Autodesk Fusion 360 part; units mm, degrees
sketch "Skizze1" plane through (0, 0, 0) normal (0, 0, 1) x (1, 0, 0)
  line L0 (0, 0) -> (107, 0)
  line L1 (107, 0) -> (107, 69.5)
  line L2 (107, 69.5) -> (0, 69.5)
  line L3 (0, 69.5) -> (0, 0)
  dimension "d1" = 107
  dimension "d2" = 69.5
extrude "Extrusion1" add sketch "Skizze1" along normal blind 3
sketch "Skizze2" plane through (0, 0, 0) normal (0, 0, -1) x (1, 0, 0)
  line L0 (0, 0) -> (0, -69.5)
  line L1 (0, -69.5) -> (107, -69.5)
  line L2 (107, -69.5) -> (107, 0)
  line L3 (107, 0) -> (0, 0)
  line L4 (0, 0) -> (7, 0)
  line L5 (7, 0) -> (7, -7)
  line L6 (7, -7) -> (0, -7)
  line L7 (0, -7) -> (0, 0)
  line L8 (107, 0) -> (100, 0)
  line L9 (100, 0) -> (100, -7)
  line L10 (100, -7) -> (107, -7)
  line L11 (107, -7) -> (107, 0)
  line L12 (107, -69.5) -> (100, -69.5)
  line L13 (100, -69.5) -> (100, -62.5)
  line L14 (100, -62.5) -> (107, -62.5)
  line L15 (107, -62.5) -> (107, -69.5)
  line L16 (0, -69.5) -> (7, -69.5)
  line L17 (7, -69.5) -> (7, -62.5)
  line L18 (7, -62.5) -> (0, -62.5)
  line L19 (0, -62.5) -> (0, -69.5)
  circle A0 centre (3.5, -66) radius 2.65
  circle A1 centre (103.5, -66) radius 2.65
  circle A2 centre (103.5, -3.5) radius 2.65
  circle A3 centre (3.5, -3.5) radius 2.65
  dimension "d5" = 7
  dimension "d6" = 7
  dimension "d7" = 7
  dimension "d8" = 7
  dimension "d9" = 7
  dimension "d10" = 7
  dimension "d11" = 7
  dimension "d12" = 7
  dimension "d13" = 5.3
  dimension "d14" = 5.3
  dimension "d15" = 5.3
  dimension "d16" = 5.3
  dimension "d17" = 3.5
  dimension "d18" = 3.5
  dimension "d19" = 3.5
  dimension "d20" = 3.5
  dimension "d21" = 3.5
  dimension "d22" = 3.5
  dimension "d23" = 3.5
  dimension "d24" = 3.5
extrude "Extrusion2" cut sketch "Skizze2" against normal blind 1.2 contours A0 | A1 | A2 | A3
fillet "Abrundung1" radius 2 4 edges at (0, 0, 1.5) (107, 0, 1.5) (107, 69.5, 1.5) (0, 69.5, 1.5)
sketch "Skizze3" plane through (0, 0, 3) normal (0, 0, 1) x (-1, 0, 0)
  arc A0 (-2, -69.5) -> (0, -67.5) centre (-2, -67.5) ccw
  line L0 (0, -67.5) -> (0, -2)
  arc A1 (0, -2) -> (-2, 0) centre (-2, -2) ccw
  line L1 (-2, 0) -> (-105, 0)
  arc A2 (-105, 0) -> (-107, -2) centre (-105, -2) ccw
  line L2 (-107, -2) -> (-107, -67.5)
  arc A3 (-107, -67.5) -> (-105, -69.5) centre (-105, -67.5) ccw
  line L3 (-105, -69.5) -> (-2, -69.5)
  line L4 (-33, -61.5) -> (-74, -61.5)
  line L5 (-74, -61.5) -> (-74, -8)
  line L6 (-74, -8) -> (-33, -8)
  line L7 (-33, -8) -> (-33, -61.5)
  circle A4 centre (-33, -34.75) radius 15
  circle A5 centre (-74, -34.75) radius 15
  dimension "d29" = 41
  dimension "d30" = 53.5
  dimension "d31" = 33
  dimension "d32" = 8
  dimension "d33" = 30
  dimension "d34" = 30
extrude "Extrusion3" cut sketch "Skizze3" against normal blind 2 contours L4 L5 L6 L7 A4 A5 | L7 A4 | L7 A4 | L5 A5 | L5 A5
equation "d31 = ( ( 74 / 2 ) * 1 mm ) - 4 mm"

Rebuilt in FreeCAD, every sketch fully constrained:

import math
import FreeCAD as App
import Part
import Sketcher

V = App.Vector
Q = App.Units.Quantity


def edges_at(feature, points):
    """Names of the edges that pass closest to the given points."""
    edges = feature.Shape.Edges
    near = lambda p: min(range(len(edges)), key=lambda i: edges[i].distToShape(Part.Vertex(*p))[0])
    return sorted({f"Edge{near(p) + 1}" for p in points})

doc = App.newDocument("Part")
body = doc.addObject("PartDesign::Body", "Body")

sketch1 = body.newObject("Sketcher::SketchObject", "Sketch")
sketch1.AttachmentSupport = (doc.getObject("XY_Plane"), [""])
sketch1.MapMode = "FlatFace"
sketch1.addGeometry([
    Part.LineSegment(V(0, 69.5, 0), V(0, 0, 0)),
    Part.LineSegment(V(0, 0, 0), V(107, 0, 0)),
    Part.LineSegment(V(107, 0, 0), V(107, 69.5, 0)),
    Part.LineSegment(V(107, 69.5, 0), V(0, 69.5, 0)),
], False)
sketch1.addConstraint([
    Sketcher.Constraint("Coincident", 0, 2, 1, 1),
    Sketcher.Constraint("Coincident", 1, 2, 2, 1),
    Sketcher.Constraint("Coincident", 2, 2, 3, 1),
    Sketcher.Constraint("Coincident", 3, 2, 0, 1),
    Sketcher.Constraint("Vertical", 0),
    Sketcher.Constraint("Horizontal", 1),
    Sketcher.Constraint("Vertical", 2),
    Sketcher.Constraint("Horizontal", 3),
    Sketcher.Constraint("Coincident", 0, 2, -1, 1),
    Sketcher.Constraint("DistanceX", 1, 1, 1, 2, Q("107 mm")),
    Sketcher.Constraint("DistanceY", 0, 2, 0, 1, Q("69.5 mm")),
])
pad1 = body.newObject("PartDesign::Pad", "Pad")
pad1.Profile = sketch1
pad1.Length = 3

sketch2 = body.newObject("Sketcher::SketchObject", "Sketch001")
sketch2.AttachmentSupport = (doc.getObject("XY_Plane"), [""])
sketch2.MapMode = "FlatFace"
sketch2.addGeometry([
    Part.Circle(V(3.5, 66, 0), V(0, 0, 1), 2.65),
    Part.Circle(V(103.5, 66, 0), V(0, 0, 1), 2.65),
    Part.Circle(V(103.5, 3.5, 0), V(0, 0, 1), 2.65),
    Part.Circle(V(3.5, 3.5, 0), V(0, 0, 1), 2.65),
], False)
sketch2.addConstraint([
    Sketcher.Constraint("Equal", 0, 1),
    Sketcher.Constraint("Equal", 1, 2),
    Sketcher.Constraint("Equal", 2, 3),
    Sketcher.Constraint("Horizontal", 0, 3, 1, 3),
    Sketcher.Constraint("Horizontal", 2, 3, 3, 3),
    Sketcher.Constraint("Vertical", 1, 3, 2, 3),
    Sketcher.Constraint("Vertical", 0, 3, 3, 3),
    Sketcher.Constraint("Diameter", 0, Q("5.3 mm")),
    Sketcher.Constraint("DistanceX", -1, 1, 0, 3, Q("3.5 mm")),
    Sketcher.Constraint("DistanceY", -1, 1, 2, 3, Q("3.5 mm")),
    Sketcher.Constraint("DistanceY", -1, 1, 0, 3, Q("66 mm")),
    Sketcher.Constraint("DistanceX", 0, 3, 1, 3, Q("100 mm")),
])
pocket1 = body.newObject("PartDesign::Pocket", "Pocket")
pocket1.Profile = sketch2
pocket1.Length = 1.2
pocket1.Reversed = True
doc.recompute()

fillet = body.newObject("PartDesign::Fillet", "Fillet")
fillet.Base = (pocket1, edges_at(pocket1, [
    (0, 0, 1.5),
    (107, 0, 1.5),
    (107, 69.5, 1.5),
    (0, 69.5, 1.5),
]))
fillet.Radius = 2

sketch3 = body.newObject("Sketcher::SketchObject", "Sketch002")
sketch3.AttachmentSupport = (doc.getObject("XY_Plane"), [""])
sketch3.MapMode = "FlatFace"
sketch3.AttachmentOffset = App.Placement(V(0, 0, 3), App.Rotation())
sketch3.addGeometry([
    Part.LineSegment(V(74, 61.5, 0), V(33, 61.5, 0)),
    Part.LineSegment(V(33, 61.5, 0), V(33, 49.75, 0)),
    Part.ArcOfCircle(Part.Circle(V(33, 34.75, 0), V(0, 0, 1), 15), math.radians(90), math.radians(270)),
    Part.LineSegment(V(33, 19.75, 0), V(33, 8, 0)),
    Part.LineSegment(V(33, 8, 0), V(74, 8, 0)),
    Part.LineSegment(V(74, 8, 0), V(74, 19.75, 0)),
    Part.ArcOfCircle(Part.Circle(V(74, 34.75, 0), V(0, 0, 1), 15), math.radians(-90), math.radians(90)),
    Part.LineSegment(V(74, 49.75, 0), V(74, 61.5, 0)),
], False)
sketch3.addConstraint([
    Sketcher.Constraint("Coincident", 0, 2, 1, 1),
    Sketcher.Constraint("Coincident", 1, 2, 2, 1),
    Sketcher.Constraint("Coincident", 2, 2, 3, 1),
    Sketcher.Constraint("Coincident", 3, 2, 4, 1),
    Sketcher.Constraint("Coincident", 4, 2, 5, 1),
    Sketcher.Constraint("Coincident", 5, 2, 6, 1),
    Sketcher.Constraint("Coincident", 6, 2, 7, 1),
    Sketcher.Constraint("Coincident", 7, 2, 0, 1),
    Sketcher.Constraint("Horizontal", 0),
    Sketcher.Constraint("Vertical", 1),
    Sketcher.Constraint("Vertical", 3),
    Sketcher.Constraint("Horizontal", 4),
    Sketcher.Constraint("Vertical", 5),
    Sketcher.Constraint("Vertical", 7),
    Sketcher.Constraint("Equal", 2, 6),
    Sketcher.Constraint("Horizontal", 2, 3, 6, 3),
    Sketcher.Constraint("Vertical", 2, 3, 0, 2),
    Sketcher.Constraint("Vertical", 1, 2, 2, 2),
    Sketcher.Constraint("Vertical", 6, 3, 4, 2),
    Sketcher.Constraint("Vertical", 5, 2, 6, 2),
    Sketcher.Constraint("Equal", 1, 3),
    Sketcher.Constraint("Radius", 2, Q("15 mm")),
    Sketcher.Constraint("DistanceX", 0, 2, 0, 1, Q("41 mm")),
    Sketcher.Constraint("DistanceX", -1, 1, 2, 3, Q("33 mm")),
    Sketcher.Constraint("DistanceY", -1, 1, 3, 2, Q("8 mm")),
    Sketcher.Constraint("DistanceY", 3, 2, 0, 2, Q("53.5 mm")),
])
pocket2 = body.newObject("PartDesign::Pocket", "Pocket001")
pocket2.Profile = sketch3
pocket2.Length = 2

doc.recompute()
